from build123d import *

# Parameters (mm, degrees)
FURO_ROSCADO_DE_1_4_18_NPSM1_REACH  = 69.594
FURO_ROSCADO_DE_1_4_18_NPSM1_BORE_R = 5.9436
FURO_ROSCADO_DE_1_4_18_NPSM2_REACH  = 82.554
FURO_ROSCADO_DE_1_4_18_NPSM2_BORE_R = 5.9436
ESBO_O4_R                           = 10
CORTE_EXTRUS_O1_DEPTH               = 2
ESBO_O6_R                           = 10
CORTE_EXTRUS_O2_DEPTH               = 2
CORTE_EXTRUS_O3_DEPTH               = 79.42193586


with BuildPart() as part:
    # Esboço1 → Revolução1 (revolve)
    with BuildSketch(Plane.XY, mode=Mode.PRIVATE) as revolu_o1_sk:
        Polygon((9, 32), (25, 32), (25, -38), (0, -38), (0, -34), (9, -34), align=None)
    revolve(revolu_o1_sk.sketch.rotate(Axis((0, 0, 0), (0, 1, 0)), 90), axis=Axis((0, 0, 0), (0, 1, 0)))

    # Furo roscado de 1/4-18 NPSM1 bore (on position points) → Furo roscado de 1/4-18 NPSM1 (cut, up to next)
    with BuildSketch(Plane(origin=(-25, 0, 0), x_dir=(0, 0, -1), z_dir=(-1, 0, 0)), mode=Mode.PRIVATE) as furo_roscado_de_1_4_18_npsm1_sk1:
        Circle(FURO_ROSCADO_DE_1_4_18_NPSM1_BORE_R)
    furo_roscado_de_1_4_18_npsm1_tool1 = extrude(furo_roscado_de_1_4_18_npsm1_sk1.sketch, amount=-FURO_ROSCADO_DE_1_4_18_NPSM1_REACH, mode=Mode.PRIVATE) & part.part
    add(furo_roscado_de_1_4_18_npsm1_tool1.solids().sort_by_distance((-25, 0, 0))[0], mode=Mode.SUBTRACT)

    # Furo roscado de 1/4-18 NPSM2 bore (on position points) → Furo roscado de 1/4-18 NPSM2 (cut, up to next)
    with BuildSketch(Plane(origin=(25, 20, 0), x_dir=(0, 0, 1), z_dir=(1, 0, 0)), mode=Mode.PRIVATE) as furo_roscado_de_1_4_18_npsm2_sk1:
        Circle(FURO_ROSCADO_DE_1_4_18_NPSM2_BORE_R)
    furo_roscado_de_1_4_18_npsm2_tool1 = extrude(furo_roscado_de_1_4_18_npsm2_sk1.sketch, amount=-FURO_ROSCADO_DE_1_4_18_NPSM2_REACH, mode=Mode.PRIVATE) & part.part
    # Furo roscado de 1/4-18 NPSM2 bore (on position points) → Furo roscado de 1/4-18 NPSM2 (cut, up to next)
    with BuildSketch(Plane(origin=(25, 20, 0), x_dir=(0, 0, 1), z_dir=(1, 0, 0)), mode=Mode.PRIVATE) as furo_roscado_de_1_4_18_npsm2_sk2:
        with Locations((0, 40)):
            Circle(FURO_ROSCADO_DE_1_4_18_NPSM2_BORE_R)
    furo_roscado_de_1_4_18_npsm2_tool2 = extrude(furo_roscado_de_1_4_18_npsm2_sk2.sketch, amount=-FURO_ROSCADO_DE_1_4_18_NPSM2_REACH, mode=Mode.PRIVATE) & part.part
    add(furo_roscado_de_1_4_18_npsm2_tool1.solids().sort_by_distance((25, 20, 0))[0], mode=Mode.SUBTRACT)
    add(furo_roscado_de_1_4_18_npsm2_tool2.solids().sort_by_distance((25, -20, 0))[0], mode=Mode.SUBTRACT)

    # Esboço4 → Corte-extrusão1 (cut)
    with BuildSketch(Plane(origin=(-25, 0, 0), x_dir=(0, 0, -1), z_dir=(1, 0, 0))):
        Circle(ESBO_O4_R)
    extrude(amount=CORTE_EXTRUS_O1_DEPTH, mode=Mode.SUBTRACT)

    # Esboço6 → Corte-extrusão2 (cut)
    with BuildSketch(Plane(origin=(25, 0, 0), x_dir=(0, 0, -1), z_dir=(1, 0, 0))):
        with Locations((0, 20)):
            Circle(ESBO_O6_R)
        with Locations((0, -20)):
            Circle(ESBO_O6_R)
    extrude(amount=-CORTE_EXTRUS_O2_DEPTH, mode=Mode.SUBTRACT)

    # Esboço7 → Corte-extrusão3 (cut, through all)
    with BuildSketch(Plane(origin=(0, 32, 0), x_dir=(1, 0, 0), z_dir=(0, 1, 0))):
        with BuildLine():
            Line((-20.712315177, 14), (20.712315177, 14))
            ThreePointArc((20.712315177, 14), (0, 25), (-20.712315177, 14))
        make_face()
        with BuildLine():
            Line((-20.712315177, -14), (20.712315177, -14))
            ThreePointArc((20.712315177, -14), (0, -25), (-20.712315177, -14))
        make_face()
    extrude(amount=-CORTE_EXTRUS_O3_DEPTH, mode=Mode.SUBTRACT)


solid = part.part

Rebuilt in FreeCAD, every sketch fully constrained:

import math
import FreeCAD as App
import Part
import Sketcher


def add_polygon(sketch, points):
    """Adds a closed chain of lines whose ends are joined by coincident constraints."""
    first, n = sketch.GeometryCount, len(points)
    for a, b in zip(points, points[1:] + points[:1]):
        sketch.addGeometry(Part.LineSegment(App.Vector(*a, 0), App.Vector(*b, 0)), False)
    for i in range(n):
        sketch.addConstraint(Sketcher.Constraint("Coincident", first + i, 2, first + (i + 1) % n, 1))

doc = App.newDocument("Part")
body = doc.addObject("PartDesign::Body", "Body")

# Sketch on XY plane
sketch1 = body.newObject("Sketcher::SketchObject", "Sketch")
sketch1.AttachmentSupport = (doc.getObject("XY_Plane"), [""])
sketch1.MapMode = "FlatFace"
add_polygon(sketch1, [(25, 32), (9, 32), (9, -34), (0, -34), (0, -38), (25, -38)])  # lines 0-5
sketch1.addConstraint(Sketcher.Constraint("Horizontal", 0))
sketch1.addConstraint(Sketcher.Constraint("Vertical", 1))
sketch1.addConstraint(Sketcher.Constraint("Horizontal", 2))
sketch1.addConstraint(Sketcher.Constraint("Vertical", 3))
sketch1.addConstraint(Sketcher.Constraint("Horizontal", 4))
sketch1.addConstraint(Sketcher.Constraint("Vertical", 5))
sketch1.addConstraint(Sketcher.Constraint("PointOnObject", 2, 2, -2))
sketch1.addConstraint(Sketcher.Constraint("DistanceX", 0, 2, 0, 1, 16.0))
sketch1.addConstraint(Sketcher.Constraint("DistanceX", 2, 2, 2, 1, 9.0))
sketch1.addConstraint(Sketcher.Constraint("DistanceY", 1, 2, 1, 1, 66.0))
sketch1.addConstraint(Sketcher.Constraint("DistanceY", 3, 2, 3, 1, 4.0))
sketch1.addConstraint(Sketcher.Constraint("DistanceY", -1, 1, 0, 2, 32.0))
revolution = body.newObject("PartDesign::Revolution", "Revolution")
revolution.Profile = sketch1
revolution.ReferenceAxis = (sketch1, ["V_Axis"])
revolution.Angle = 360

# Sketch on YZ plane
sketch2 = body.newObject("Sketcher::SketchObject", "Sketch001")
sketch2.AttachmentSupport = (doc.getObject("YZ_Plane"), [""])
sketch2.MapMode = "FlatFace"
sketch2.AttachmentOffset = App.Placement(App.Vector(0, 0, -25), App.Rotation())
sketch2.addGeometry(Part.Circle(App.Vector(0, 0, 0), App.Vector(0, 0, 1), 6), False)
sketch2.addConstraint(Sketcher.Constraint("Coincident", 0, 3, -1, 1))
sketch2.addConstraint(Sketcher.Constraint("Diameter", 0, 11.8872))
pocket1 = body.newObject("PartDesign::Pocket", "Pocket")
pocket1.Profile = sketch2
pocket1.Type = "UpToFirst"
pocket1.Reversed = True

# Sketch on YZ plane
sketch3 = body.newObject("Sketcher::SketchObject", "Sketch002")
sketch3.AttachmentSupport = (doc.getObject("YZ_Plane"), [""])
sketch3.MapMode = "FlatFace"
sketch3.AttachmentOffset = App.Placement(App.Vector(0, 0, 25), App.Rotation())
sketch3.addGeometry(Part.Circle(App.Vector(20, 0, 0), App.Vector(0, 0, 1), 6), False)
sketch3.addConstraint(Sketcher.Constraint("PointOnObject", 0, 3, -1))
sketch3.addConstraint(Sketcher.Constraint("DistanceX", -1, 1, 0, 3, 20.0))
sketch3.addConstraint(Sketcher.Constraint("Diameter", 0, 11.8872))
pocket2 = body.newObject("PartDesign::Pocket", "Pocket001")
pocket2.Profile = sketch3
pocket2.Type = "UpToFirst"

# Sketch on YZ plane
sketch4 = body.newObject("Sketcher::SketchObject", "Sketch003")
sketch4.AttachmentSupport = (doc.getObject("YZ_Plane"), [""])
sketch4.MapMode = "FlatFace"
sketch4.AttachmentOffset = App.Placement(App.Vector(0, 0, 25), App.Rotation())
sketch4.addGeometry(Part.Circle(App.Vector(-20, 0, 0), App.Vector(0, 0, 1), 6), False)
sketch4.addConstraint(Sketcher.Constraint("PointOnObject", 0, 3, -1))
sketch4.addConstraint(Sketcher.Constraint("DistanceX", 0, 3, -1, 1, 20.0))
sketch4.addConstraint(Sketcher.Constraint("Diameter", 0, 11.8872))
pocket3 = body.newObject("PartDesign::Pocket", "Pocket002")
pocket3.Profile = sketch4
pocket3.Length = 18.241774

# Sketch on YZ plane
sketch5 = body.newObject("Sketcher::SketchObject", "Sketch004")
sketch5.AttachmentSupport = (doc.getObject("YZ_Plane"), [""])
sketch5.MapMode = "FlatFace"
sketch5.AttachmentOffset = App.Placement(App.Vector(0, 0, -25), App.Rotation())
sketch5.addGeometry(Part.Circle(App.Vector(0, 0, 0), App.Vector(0, 0, 1), 10), False)
sketch5.addConstraint(Sketcher.Constraint("Coincident", 0, 3, -1, 1))
sketch5.addConstraint(Sketcher.Constraint("Diameter", 0, 20.0))
pocket4 = body.newObject("PartDesign::Pocket", "Pocket003")
pocket4.Profile = sketch5
pocket4.Length = 2
pocket4.Reversed = True

# Sketch on YZ plane
sketch6 = body.newObject("Sketcher::SketchObject", "Sketch005")
sketch6.AttachmentSupport = (doc.getObject("YZ_Plane"), [""])
sketch6.MapMode = "FlatFace"
sketch6.AttachmentOffset = App.Placement(App.Vector(0, 0, 25), App.Rotation())
sketch6.addGeometry(Part.Circle(App.Vector(20, 0, 0), App.Vector(0, 0, 1), 10), False)
sketch6.addGeometry(Part.Circle(App.Vector(-20, 0, 0), App.Vector(0, 0, 1), 10), False)
sketch6.addConstraint(Sketcher.Constraint("Equal", 0, 1))
sketch6.addConstraint(Sketcher.Constraint("Symmetric", 0, 3, 1, 3, -1, 1))
sketch6.addConstraint(Sketcher.Constraint("PointOnObject", 0, 3, -1))
sketch6.addConstraint(Sketcher.Constraint("Diameter", 0, 20.0))
sketch6.addConstraint(Sketcher.Constraint("DistanceX", -1, 1, 0, 3, 20.0))
pocket5 = body.newObject("PartDesign::Pocket", "Pocket004")
pocket5.Profile = sketch6
pocket5.Length = 2

# Sketch on XZ plane
sketch7 = body.newObject("Sketcher::SketchObject", "Sketch006")
sketch7.AttachmentSupport = (doc.getObject("XZ_Plane"), [""])
sketch7.MapMode = "FlatFace"
sketch7.AttachmentOffset = App.Placement(App.Vector(0, 0, -32), App.Rotation())
sketch7.addGeometry(Part.LineSegment(App.Vector(-21, -14, 0), App.Vector(21, -14, 0)), False)
sketch7.addGeometry(Part.ArcOfCircle(Part.Circle(App.Vector(0, 0, 0), App.Vector(0, 0, 1), 25), math.radians(-146), math.radians(-34)), False)
sketch7.addGeometry(Part.LineSegment(App.Vector(21, 14, 0), App.Vector(-21, 14, 0)), False)
sketch7.addGeometry(Part.ArcOfCircle(Part.Circle(App.Vector(0, 0, 0), App.Vector(0, 0, 1), 25), math.radians(34), math.radians(146)), False)
sketch7.addConstraint(Sketcher.Constraint("Coincident", 0, 1, 1, 1))
sketch7.addConstraint(Sketcher.Constraint("Coincident", 1, 2, 0, 2))
sketch7.addConstraint(Sketcher.Constraint("Coincident", 2, 1, 3, 1))
sketch7.addConstraint(Sketcher.Constraint("Coincident", 3, 2, 2, 2))
sketch7.addConstraint(Sketcher.Constraint("Horizontal", 0))
sketch7.addConstraint(Sketcher.Constraint("Horizontal", 2))
sketch7.addConstraint(Sketcher.Constraint("Coincident", 1, 3, -1, 1))
sketch7.addConstraint(Sketcher.Constraint("Coincident", 3, 3, -1, 1))
sketch7.addConstraint(Sketcher.Constraint("Equal", 1, 3))
sketch7.addConstraint(Sketcher.Constraint("Vertical", 1, 2, 2, 1))
sketch7.addConstraint(Sketcher.Constraint("Radius", 1, 25.0))
sketch7.addConstraint(Sketcher.Constraint("DistanceY", 0, 1, -1, 1, 14.0))
pocket6 = body.newObject("PartDesign::Pocket", "Pocket005")
pocket6.Profile = sketch7
pocket6.Type = "ThroughAll"
pocket6.Reversed = True

doc.recompute()
